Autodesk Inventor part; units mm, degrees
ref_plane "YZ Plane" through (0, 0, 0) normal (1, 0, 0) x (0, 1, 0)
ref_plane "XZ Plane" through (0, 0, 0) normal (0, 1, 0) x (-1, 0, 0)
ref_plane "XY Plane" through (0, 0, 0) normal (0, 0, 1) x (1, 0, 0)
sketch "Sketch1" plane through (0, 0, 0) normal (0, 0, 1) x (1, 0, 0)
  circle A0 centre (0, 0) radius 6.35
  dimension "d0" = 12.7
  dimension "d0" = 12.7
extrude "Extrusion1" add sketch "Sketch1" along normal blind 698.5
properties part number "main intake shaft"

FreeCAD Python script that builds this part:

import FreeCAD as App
import Part
import Sketcher
from FreeCAD import Vector
Q = App.Units.Quantity

doc = App.newDocument("Part")
body = doc.addObject("PartDesign::Body", "Body")

sketch1 = body.newObject("Sketcher::SketchObject", "Sketch")
sketch1.AttachmentSupport = (doc.getObject("XY_Plane"), [""])
sketch1.MapMode = "FlatFace"
sketch1.addGeometry(Part.Circle(Vector(0, 0, 0), Vector(0, 0, 1), 6.35), False)
sketch1.addConstraint(Sketcher.Constraint("Coincident", 0, 3, -1, 1))
sketch1.addConstraint(Sketcher.Constraint("Diameter", 0, Q("0.5 in")))
pad1 = body.newObject("PartDesign::Pad", "Pad")
pad1.Profile = sketch1
pad1.Length = Q("27.5 in")

doc.recompute()
